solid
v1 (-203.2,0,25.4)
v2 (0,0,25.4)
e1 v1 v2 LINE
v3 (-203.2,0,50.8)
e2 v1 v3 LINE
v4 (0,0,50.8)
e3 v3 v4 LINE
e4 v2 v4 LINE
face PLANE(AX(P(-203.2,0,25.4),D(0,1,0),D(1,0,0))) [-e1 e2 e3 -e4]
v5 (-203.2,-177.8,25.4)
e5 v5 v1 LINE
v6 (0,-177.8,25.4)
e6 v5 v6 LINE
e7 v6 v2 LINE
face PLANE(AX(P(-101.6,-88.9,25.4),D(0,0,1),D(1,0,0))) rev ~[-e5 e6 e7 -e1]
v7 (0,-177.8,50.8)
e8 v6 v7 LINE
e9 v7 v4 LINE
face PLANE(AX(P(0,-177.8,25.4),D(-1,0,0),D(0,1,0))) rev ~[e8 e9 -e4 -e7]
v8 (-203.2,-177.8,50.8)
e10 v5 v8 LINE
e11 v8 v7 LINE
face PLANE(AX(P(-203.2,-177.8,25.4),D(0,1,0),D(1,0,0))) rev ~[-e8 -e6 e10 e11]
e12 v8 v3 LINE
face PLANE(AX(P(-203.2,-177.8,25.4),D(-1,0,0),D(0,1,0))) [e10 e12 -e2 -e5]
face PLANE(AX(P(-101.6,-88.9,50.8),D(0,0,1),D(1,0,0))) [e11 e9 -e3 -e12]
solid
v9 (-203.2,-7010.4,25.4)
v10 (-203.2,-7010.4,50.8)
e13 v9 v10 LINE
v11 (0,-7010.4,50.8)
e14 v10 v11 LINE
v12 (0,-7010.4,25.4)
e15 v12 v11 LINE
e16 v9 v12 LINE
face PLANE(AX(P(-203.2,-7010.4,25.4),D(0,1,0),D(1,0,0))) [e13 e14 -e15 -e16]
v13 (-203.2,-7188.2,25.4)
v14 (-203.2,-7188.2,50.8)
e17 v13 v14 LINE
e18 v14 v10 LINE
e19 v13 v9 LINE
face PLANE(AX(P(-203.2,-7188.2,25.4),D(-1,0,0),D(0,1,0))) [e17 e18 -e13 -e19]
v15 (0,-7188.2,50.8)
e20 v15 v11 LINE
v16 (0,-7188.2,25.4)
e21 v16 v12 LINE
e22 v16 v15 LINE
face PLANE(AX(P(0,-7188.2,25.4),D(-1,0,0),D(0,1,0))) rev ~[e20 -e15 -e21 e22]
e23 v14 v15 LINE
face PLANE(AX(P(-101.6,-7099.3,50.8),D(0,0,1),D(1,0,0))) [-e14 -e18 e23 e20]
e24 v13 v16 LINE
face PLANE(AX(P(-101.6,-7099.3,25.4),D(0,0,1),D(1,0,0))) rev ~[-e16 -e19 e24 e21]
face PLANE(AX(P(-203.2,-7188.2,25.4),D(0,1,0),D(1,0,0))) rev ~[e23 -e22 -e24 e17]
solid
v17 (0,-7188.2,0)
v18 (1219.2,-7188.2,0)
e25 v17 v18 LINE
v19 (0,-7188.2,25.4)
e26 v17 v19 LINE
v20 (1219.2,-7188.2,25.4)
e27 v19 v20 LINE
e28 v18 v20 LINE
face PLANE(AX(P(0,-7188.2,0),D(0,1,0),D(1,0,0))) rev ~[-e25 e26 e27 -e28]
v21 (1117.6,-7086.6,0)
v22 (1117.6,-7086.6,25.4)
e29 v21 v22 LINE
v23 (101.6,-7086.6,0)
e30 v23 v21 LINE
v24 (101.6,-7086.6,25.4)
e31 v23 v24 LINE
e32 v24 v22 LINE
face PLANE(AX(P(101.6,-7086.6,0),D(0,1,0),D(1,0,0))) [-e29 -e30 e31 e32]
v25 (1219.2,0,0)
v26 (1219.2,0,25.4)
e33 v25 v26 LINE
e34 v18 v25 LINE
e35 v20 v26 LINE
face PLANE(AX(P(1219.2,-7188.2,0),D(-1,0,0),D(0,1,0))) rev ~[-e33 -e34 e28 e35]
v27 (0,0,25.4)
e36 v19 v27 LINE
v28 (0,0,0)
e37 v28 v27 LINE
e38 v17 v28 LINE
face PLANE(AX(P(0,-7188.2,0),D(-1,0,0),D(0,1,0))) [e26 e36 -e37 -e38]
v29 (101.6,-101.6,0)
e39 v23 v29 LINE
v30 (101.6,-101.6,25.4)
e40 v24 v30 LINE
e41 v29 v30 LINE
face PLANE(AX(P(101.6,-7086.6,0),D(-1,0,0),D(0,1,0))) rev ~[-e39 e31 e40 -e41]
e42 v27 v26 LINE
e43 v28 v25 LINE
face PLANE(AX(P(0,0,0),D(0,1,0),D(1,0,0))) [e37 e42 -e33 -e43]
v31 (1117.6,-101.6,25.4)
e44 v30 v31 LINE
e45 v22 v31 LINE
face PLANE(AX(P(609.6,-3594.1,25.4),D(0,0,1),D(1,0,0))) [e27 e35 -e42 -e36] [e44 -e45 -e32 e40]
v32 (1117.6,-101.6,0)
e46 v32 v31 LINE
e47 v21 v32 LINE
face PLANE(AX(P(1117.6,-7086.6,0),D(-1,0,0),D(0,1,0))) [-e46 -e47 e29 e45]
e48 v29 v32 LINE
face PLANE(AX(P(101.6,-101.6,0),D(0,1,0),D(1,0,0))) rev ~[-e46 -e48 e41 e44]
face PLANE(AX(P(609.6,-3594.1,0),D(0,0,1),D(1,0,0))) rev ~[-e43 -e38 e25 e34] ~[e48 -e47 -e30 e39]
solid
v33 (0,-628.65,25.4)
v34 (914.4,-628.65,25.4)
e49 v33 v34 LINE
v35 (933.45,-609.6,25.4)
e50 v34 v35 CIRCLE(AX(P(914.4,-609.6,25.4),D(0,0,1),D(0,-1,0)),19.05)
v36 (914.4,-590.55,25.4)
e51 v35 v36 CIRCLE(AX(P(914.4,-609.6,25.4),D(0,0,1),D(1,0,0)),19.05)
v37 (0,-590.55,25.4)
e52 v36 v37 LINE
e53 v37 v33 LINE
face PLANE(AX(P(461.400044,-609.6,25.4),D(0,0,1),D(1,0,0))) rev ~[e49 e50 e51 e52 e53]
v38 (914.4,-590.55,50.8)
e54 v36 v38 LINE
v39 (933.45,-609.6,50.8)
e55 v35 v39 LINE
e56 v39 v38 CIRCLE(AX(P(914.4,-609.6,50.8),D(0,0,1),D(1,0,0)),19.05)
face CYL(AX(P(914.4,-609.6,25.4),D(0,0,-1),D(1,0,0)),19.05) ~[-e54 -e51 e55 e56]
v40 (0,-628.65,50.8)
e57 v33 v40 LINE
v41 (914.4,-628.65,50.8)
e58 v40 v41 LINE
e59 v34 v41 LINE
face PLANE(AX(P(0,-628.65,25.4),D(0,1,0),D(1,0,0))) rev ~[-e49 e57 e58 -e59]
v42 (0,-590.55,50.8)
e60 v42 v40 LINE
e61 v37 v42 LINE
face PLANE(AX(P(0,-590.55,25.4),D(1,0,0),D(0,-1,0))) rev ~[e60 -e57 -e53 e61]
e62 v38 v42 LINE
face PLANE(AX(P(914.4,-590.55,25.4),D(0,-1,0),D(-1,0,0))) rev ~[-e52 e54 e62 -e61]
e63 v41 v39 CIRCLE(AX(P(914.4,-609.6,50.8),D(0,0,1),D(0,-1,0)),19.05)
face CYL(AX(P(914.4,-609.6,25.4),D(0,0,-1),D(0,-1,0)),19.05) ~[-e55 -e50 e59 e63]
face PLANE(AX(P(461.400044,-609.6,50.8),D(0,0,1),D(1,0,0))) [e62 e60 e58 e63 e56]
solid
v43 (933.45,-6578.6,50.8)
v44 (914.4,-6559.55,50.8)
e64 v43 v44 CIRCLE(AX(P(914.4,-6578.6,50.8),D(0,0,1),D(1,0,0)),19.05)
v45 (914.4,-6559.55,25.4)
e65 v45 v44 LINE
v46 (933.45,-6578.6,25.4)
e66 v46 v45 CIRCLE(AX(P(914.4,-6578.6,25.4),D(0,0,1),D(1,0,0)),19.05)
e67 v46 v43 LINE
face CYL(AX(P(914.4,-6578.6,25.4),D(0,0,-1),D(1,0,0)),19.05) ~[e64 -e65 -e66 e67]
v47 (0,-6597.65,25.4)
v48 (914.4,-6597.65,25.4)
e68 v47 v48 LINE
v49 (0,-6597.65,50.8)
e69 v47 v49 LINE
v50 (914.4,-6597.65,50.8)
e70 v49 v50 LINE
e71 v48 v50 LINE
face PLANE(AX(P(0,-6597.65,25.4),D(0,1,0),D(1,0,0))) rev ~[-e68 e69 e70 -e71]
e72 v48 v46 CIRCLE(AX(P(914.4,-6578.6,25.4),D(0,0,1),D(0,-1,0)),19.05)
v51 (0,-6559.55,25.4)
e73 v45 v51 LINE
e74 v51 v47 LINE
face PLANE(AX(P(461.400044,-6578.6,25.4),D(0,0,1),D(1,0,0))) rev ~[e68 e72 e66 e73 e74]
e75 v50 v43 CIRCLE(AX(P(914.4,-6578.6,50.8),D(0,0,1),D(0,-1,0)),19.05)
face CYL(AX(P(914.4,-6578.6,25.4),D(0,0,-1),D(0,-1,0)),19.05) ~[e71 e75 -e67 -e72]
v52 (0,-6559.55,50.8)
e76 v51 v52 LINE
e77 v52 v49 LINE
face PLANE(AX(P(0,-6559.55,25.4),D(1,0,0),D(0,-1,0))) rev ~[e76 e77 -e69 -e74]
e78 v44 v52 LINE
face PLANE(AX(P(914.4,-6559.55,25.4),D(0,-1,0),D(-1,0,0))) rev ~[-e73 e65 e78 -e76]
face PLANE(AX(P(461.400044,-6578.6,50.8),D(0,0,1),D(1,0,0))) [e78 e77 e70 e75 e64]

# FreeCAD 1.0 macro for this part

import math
import FreeCAD as App
import Part
import Sketcher
Q = App.Units.Quantity


def add_polygon(sketch, points):
    """Adds a closed chain of lines whose ends are joined by coincident constraints."""
    first, n = sketch.GeometryCount, len(points)
    for a, b in zip(points, points[1:] + points[:1]):
        sketch.addGeometry(Part.LineSegment(App.Vector(*a, 0), App.Vector(*b, 0)), False)
    for i in range(n):
        sketch.addConstraint(Sketcher.Constraint("Coincident", first + i, 2, first + (i + 1) % n, 1))

doc = App.newDocument("Part")
body = doc.addObject("PartDesign::Body", "Body")

# Sketch on XY plane
sketch1 = body.newObject("Sketcher::SketchObject", "Sketch")
sketch1.AttachmentSupport = (doc.getObject("XY_Plane"), [""])
sketch1.MapMode = "FlatFace"
add_polygon(sketch1, [(0, 0), (0, -7188), (1219, -7188), (1219, 0)])  # lines 0-3
add_polygon(sketch1, [(1118, -7087), (102, -7087), (102, -102), (1118, -102)])  # lines 4-7
sketch1.addConstraint([
    Sketcher.Constraint("Vertical", 0),
    Sketcher.Constraint("Horizontal", 1),
    Sketcher.Constraint("Vertical", 2),
    Sketcher.Constraint("Horizontal", 3),
    Sketcher.Constraint("Horizontal", 4),
    Sketcher.Constraint("Vertical", 5),
    Sketcher.Constraint("Horizontal", 6),
    Sketcher.Constraint("Vertical", 7),
    Sketcher.Constraint("Coincident", 3, 2, -1, 1),
    Sketcher.Constraint("DistanceX", 1, 1, 1, 2, Q("48 in")),
    Sketcher.Constraint("DistanceX", 4, 2, 4, 1, Q("40 in")),
    Sketcher.Constraint("DistanceY", 0, 2, 0, 1, Q("283 in")),
    Sketcher.Constraint("DistanceY", 5, 1, 5, 2, Q("275 in")),
    Sketcher.Constraint("DistanceX", -1, 1, 4, 2, Q("4 in")),
    Sketcher.Constraint("DistanceY", 4, 2, -1, 1, Q("279 in")),
])
pad1 = body.newObject("PartDesign::Pad", "Pad")
pad1.Profile = sketch1
pad1.Length = Q("1 in")
body2 = doc.addObject("PartDesign::Body", "Body001")

# Sketch on XY plane
sketch2 = body2.newObject("Sketcher::SketchObject", "Sketch001")
sketch2.AttachmentSupport = (doc.getObject("XY_Plane001"), [""])
sketch2.MapMode = "FlatFace"
sketch2.AttachmentOffset = App.Placement(App.Vector(0, 0, 1 * 25.4), App.Rotation())
add_polygon(sketch2, [(-203, 0), (-203, -178), (0, -178), (0, 0)])  # lines 0-3
sketch2.addConstraint([
    Sketcher.Constraint("Vertical", 0),
    Sketcher.Constraint("Horizontal", 1),
    Sketcher.Constraint("Vertical", 2),
    Sketcher.Constraint("Horizontal", 3),
    Sketcher.Constraint("Coincident", 2, 2, -1, 1),
    Sketcher.Constraint("DistanceX", 1, 1, 1, 2, Q("8 in")),
    Sketcher.Constraint("DistanceY", 0, 2, 0, 1, Q("7 in")),
])
pad2 = body2.newObject("PartDesign::Pad", "Pad001")
pad2.Profile = sketch2
pad2.Length = Q("1 in")
body3 = doc.addObject("PartDesign::Body", "Body002")

# Sketch on XY plane
sketch3 = body3.newObject("Sketcher::SketchObject", "Sketch002")
sketch3.AttachmentSupport = (doc.getObject("XY_Plane002"), [""])
sketch3.MapMode = "FlatFace"
sketch3.AttachmentOffset = App.Placement(App.Vector(0, 0, 1 * 25.4), App.Rotation())
add_polygon(sketch3, [(-203, -7010), (-203, -7188), (0, -7188), (0, -7010)])  # lines 0-3
sketch3.addConstraint([
    Sketcher.Constraint("Vertical", 0),
    Sketcher.Constraint("Horizontal", 1),
    Sketcher.Constraint("Vertical", 2),
    Sketcher.Constraint("Horizontal", 3),
    Sketcher.Constraint("PointOnObject", 1, 2, -2),
    Sketcher.Constraint("DistanceX", 1, 1, 1, 2, Q("8 in")),
    Sketcher.Constraint("DistanceY", 0, 2, 0, 1, Q("7 in")),
    Sketcher.Constraint("DistanceY", 0, 2, -1, 1, Q("283 in")),
])
pad3 = body3.newObject("PartDesign::Pad", "Pad002")
pad3.Profile = sketch3
pad3.Length = Q("1 in")
body4 = doc.addObject("PartDesign::Body", "Body003")

# Sketch on XY plane
sketch4 = body4.newObject("Sketcher::SketchObject", "Sketch003")
sketch4.AttachmentSupport = (doc.getObject("XY_Plane003"), [""])
sketch4.MapMode = "FlatFace"
sketch4.AttachmentOffset = App.Placement(App.Vector(0, 0, 1 * 25.4), App.Rotation())
sketch4.addGeometry([
    Part.LineSegment(App.Vector(914, -591, 0), App.Vector(0, -591, 0)),  # 0
    Part.LineSegment(App.Vector(0, -591, 0), App.Vector(0, -629, 0)),  # 1
    Part.LineSegment(App.Vector(0, -629, 0), App.Vector(914, -629, 0)),  # 2
    Part.ArcOfCircle(Part.Circle(App.Vector(914, -610, 0), App.Vector(0, 0, 1), 19), math.radians(-90), math.radians(0)),  # 3
    Part.ArcOfCircle(Part.Circle(App.Vector(914, -610, 0), App.Vector(0, 0, 1), 19), math.radians(0), math.radians(90)),  # 4
], False)
sketch4.addConstraint([
    Sketcher.Constraint("Coincident", 0, 2, 1, 1),
    Sketcher.Constraint("Coincident", 1, 2, 2, 1),
    Sketcher.Constraint("Tangent", 2, 2, 3, 1),
    Sketcher.Constraint("Tangent", 3, 2, 4, 1),
    Sketcher.Constraint("Tangent", 4, 2, 0, 1),
    Sketcher.Constraint("Horizontal", 0),
    Sketcher.Constraint("Vertical", 1),
    Sketcher.Constraint("Horizontal", 2),
    Sketcher.Constraint("Equal", 3, 4),
    Sketcher.Constraint("PointOnObject", 0, 2, -2),
    Sketcher.Constraint("Horizontal", 4, 3, 3, 2),
    Sketcher.Constraint("DistanceX", 0, 2, 0, 1, Q("36 in")),
    Sketcher.Constraint("Radius", 3, Q("0.75 in")),
    Sketcher.Constraint("DistanceY", 3, 3, -1, 1, Q("24 in")),
])
pad4 = body4.newObject("PartDesign::Pad", "Pad003")
pad4.Profile = sketch4
pad4.Length = Q("1 in")
body5 = doc.addObject("PartDesign::Body", "Body004")

# Sketch on XY plane
sketch5 = body5.newObject("Sketcher::SketchObject", "Sketch004")
sketch5.AttachmentSupport = (doc.getObject("XY_Plane004"), [""])
sketch5.MapMode = "FlatFace"
sketch5.AttachmentOffset = App.Placement(App.Vector(0, 0, 1 * 25.4), App.Rotation())
sketch5.addGeometry([
    Part.LineSegment(App.Vector(914, -6560, 0), App.Vector(0, -6560, 0)),  # 0
    Part.LineSegment(App.Vector(0, -6560, 0), App.Vector(0, -6598, 0)),  # 1
    Part.LineSegment(App.Vector(0, -6598, 0), App.Vector(914, -6598, 0)),  # 2
    Part.ArcOfCircle(Part.Circle(App.Vector(914, -6579, 0), App.Vector(0, 0, 1), 19), math.radians(-90), math.radians(0)),  # 3
    Part.ArcOfCircle(Part.Circle(App.Vector(914, -6579, 0), App.Vector(0, 0, 1), 19), math.radians(0), math.radians(90)),  # 4
], False)
sketch5.addConstraint([
    Sketcher.Constraint("Coincident", 0, 2, 1, 1),
    Sketcher.Constraint("Coincident", 1, 2, 2, 1),
    Sketcher.Constraint("Tangent", 2, 2, 3, 1),
    Sketcher.Constraint("Tangent", 3, 2, 4, 1),
    Sketcher.Constraint("Tangent", 4, 2, 0, 1),
    Sketcher.Constraint("Horizontal", 0),
    Sketcher.Constraint("Vertical", 1),
    Sketcher.Constraint("Horizontal", 2),
    Sketcher.Constraint("Equal", 3, 4),
    Sketcher.Constraint("PointOnObject", 0, 2, -2),
    Sketcher.Constraint("Horizontal", 4, 3, 3, 2),
    Sketcher.Constraint("DistanceX", 0, 2, 0, 1, Q("36 in")),
    Sketcher.Constraint("Radius", 3, Q("0.75 in")),
    Sketcher.Constraint("DistanceY", 3, 3, -1, 1, Q("259 in")),
])
pad5 = body5.newObject("PartDesign::Pad", "Pad004")
pad5.Profile = sketch5
pad5.Length = Q("1 in")

doc.recompute()
